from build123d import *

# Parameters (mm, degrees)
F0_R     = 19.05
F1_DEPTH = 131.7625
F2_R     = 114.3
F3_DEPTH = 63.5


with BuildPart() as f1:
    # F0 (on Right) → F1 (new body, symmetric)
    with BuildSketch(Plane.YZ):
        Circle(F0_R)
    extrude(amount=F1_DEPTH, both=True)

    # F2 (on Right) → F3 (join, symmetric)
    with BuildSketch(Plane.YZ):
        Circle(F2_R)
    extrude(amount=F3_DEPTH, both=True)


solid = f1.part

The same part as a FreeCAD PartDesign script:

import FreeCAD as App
import Part
import Sketcher
from FreeCAD import Vector
Q = App.Units.Quantity

doc = App.newDocument("Part")
body = doc.addObject("PartDesign::Body", "Body")

# Sketch on YZ plane
sketch1 = doc.addObject("Sketcher::SketchObject", "Sketch")
body.addObject(sketch1)
sketch1.AttachmentSupport = (doc.YZ_Plane, [""])
sketch1.MapMode = "FlatFace"
sketch1.addGeometry(Part.Circle(Vector(0, 0, 0), Vector(0, 0, 1), 19), False)
sketch1.addConstraint(Sketcher.Constraint("Coincident", 0, 3, -1, 1))
sketch1.addConstraint(Sketcher.Constraint("Diameter", 0, Q("1.5 in")))
pad1 = doc.addObject("PartDesign::Pad", "Pad")
body.addObject(pad1)
pad1.Profile = sketch1
pad1.Length = Q("10.375 in")
pad1.Midplane = True

# Sketch on YZ plane
sketch2 = doc.addObject("Sketcher::SketchObject", "Sketch001")
body.addObject(sketch2)
sketch2.AttachmentSupport = (doc.YZ_Plane, [""])
sketch2.MapMode = "FlatFace"
sketch2.addGeometry(Part.Circle(Vector(0, 0, 0), Vector(0, 0, 1), 114), False)
sketch2.addConstraint(Sketcher.Constraint("Coincident", 0, 3, -1, 1))
sketch2.addConstraint(Sketcher.Constraint("Diameter", 0, Q("9 in")))
pad2 = doc.addObject("PartDesign::Pad", "Pad001")
body.addObject(pad2)
pad2.Profile = sketch2
pad2.Length = Q("5 in")
pad2.Midplane = True

doc.recompute()
